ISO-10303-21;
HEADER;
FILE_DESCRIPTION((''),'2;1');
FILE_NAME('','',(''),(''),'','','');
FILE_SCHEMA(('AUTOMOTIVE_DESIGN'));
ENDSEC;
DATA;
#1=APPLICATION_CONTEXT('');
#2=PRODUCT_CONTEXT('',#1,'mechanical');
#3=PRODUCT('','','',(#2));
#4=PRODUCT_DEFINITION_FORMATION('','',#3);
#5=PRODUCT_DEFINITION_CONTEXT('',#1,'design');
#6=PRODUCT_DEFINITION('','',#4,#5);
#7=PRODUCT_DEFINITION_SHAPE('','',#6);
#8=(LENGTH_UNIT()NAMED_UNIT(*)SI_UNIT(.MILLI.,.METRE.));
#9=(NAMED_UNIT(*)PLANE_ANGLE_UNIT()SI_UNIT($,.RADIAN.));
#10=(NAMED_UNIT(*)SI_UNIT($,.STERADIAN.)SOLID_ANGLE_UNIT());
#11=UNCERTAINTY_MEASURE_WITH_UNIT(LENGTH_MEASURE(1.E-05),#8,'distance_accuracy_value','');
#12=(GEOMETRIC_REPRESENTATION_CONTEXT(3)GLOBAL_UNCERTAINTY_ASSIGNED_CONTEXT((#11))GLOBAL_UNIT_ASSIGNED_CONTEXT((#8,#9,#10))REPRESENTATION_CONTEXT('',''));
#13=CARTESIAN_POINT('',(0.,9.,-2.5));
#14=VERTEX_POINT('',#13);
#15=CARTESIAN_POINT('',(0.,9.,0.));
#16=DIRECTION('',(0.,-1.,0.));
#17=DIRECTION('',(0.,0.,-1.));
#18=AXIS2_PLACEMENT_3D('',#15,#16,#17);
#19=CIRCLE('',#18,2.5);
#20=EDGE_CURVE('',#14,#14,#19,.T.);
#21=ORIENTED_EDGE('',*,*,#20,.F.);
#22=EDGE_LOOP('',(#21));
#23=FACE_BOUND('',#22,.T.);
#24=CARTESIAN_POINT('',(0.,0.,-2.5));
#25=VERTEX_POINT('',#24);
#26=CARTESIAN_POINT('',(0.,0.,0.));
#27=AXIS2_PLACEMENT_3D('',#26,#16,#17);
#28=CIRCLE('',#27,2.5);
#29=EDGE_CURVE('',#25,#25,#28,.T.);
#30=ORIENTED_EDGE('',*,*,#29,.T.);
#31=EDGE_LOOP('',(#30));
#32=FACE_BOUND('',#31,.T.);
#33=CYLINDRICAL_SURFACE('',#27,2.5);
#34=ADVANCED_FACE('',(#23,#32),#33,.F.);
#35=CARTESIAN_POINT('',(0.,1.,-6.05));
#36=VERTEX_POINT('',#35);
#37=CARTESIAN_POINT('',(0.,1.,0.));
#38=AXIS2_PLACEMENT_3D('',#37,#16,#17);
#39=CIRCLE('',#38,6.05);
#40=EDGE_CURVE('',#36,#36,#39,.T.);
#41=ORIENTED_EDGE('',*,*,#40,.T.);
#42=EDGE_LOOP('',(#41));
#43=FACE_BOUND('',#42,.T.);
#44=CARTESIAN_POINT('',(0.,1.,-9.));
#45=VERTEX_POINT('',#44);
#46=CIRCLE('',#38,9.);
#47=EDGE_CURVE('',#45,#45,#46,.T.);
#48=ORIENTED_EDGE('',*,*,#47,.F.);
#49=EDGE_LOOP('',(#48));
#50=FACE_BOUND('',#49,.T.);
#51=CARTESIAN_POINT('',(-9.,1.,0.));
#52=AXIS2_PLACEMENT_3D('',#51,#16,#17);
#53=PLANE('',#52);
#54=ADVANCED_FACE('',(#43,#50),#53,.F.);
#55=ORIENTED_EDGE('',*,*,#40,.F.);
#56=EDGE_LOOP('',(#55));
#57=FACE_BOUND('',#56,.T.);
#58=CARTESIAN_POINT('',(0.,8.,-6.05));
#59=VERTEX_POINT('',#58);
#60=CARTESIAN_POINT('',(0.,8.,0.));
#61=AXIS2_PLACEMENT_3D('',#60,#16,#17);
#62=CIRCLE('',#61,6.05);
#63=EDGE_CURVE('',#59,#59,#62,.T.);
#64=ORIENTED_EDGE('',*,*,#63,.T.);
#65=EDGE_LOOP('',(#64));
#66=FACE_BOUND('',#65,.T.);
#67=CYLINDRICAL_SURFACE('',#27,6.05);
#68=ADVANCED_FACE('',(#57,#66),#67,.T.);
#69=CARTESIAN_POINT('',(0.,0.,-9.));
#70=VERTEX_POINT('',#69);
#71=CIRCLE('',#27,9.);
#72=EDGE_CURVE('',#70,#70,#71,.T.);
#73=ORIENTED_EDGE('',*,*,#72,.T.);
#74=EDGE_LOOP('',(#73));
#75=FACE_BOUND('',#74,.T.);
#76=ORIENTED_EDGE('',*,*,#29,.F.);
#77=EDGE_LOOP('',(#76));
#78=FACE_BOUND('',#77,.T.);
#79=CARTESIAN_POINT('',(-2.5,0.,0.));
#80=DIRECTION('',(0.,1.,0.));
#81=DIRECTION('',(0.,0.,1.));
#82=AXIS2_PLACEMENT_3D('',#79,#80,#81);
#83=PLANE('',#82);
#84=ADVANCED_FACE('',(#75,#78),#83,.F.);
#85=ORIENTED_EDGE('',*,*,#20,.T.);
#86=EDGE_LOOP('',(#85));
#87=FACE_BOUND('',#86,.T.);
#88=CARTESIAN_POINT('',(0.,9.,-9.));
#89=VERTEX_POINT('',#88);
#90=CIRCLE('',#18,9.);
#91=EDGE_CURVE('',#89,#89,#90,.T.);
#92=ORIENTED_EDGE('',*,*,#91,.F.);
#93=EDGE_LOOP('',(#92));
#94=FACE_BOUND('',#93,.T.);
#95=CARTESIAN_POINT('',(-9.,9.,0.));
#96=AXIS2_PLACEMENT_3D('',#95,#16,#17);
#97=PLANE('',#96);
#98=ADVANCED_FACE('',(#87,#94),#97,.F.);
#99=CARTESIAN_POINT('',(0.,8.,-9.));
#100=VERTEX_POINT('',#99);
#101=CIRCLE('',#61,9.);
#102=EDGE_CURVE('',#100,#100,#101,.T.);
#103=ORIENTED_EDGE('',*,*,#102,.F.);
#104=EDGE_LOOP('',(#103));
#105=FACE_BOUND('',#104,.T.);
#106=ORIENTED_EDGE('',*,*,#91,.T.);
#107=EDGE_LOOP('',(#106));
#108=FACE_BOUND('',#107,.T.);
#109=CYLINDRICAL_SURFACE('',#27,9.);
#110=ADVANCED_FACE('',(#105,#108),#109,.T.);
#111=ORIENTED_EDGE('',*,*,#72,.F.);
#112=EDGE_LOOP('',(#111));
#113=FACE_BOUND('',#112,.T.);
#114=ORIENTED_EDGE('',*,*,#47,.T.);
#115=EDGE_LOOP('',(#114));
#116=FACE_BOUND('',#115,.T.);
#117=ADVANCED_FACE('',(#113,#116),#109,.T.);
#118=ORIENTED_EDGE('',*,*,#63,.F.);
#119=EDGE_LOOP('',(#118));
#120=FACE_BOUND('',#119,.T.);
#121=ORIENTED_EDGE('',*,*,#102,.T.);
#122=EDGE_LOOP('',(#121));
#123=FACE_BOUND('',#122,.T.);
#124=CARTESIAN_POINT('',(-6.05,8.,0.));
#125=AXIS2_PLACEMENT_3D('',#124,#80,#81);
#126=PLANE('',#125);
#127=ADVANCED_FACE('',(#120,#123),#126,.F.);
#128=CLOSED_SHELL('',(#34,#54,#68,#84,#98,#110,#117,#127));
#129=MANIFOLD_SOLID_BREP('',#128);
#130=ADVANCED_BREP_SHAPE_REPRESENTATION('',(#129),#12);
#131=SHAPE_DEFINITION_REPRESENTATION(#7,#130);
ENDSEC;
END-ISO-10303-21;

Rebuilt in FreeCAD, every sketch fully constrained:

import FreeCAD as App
import Part
import Sketcher
Q = App.Units.Quantity

doc = App.newDocument("Part")
body = doc.addObject("PartDesign::Body", "Body")

sketch1 = body.newObject("Sketcher::SketchObject", "Sketch")
sketch1.AttachmentSupport = (doc.getObject("XY_Plane"), [""])
sketch1.MapMode = "FlatFace"
sketch1.addGeometry(Part.LineSegment(App.Vector(-9, 0, 0), App.Vector(-2.5, 0, 0)), False)
sketch1.addGeometry(Part.LineSegment(App.Vector(-2.5, 0, 0), App.Vector(-2.5, 9, 0)), False)
sketch1.addGeometry(Part.LineSegment(App.Vector(-2.5, 9, 0), App.Vector(-9, 9, 0)), False)
sketch1.addGeometry(Part.LineSegment(App.Vector(-9, 9, 0), App.Vector(-9, 8, 0)), False)
sketch1.addGeometry(Part.LineSegment(App.Vector(-9, 8, 0), App.Vector(-6.05, 8, 0)), False)
sketch1.addGeometry(Part.LineSegment(App.Vector(-6.05, 8, 0), App.Vector(-6.05, 1, 0)), False)
sketch1.addGeometry(Part.LineSegment(App.Vector(-6.05, 1, 0), App.Vector(-9, 1, 0)), False)
sketch1.addGeometry(Part.LineSegment(App.Vector(-9, 1, 0), App.Vector(-9, 0, 0)), False)
sketch1.addConstraint(Sketcher.Constraint("Coincident", 0, 2, 1, 1))
sketch1.addConstraint(Sketcher.Constraint("Coincident", 1, 2, 2, 1))
sketch1.addConstraint(Sketcher.Constraint("Coincident", 2, 2, 3, 1))
sketch1.addConstraint(Sketcher.Constraint("Coincident", 3, 2, 4, 1))
sketch1.addConstraint(Sketcher.Constraint("Coincident", 4, 2, 5, 1))
sketch1.addConstraint(Sketcher.Constraint("Coincident", 5, 2, 6, 1))
sketch1.addConstraint(Sketcher.Constraint("Coincident", 6, 2, 7, 1))
sketch1.addConstraint(Sketcher.Constraint("Coincident", 7, 2, 0, 1))
sketch1.addConstraint(Sketcher.Constraint("Horizontal", 0))
sketch1.addConstraint(Sketcher.Constraint("Vertical", 1))
sketch1.addConstraint(Sketcher.Constraint("Horizontal", 2))
sketch1.addConstraint(Sketcher.Constraint("Vertical", 3))
sketch1.addConstraint(Sketcher.Constraint("Horizontal", 4))
sketch1.addConstraint(Sketcher.Constraint("Vertical", 5))
sketch1.addConstraint(Sketcher.Constraint("Horizontal", 6))
sketch1.addConstraint(Sketcher.Constraint("Vertical", 7))
sketch1.addConstraint(Sketcher.Constraint("PointOnObject", 0, 2, -1))
sketch1.addConstraint(Sketcher.Constraint("Vertical", 3, 2, 6, 2))
sketch1.addConstraint(Sketcher.Constraint("Equal", 3, 7))
sketch1.addConstraint(Sketcher.Constraint("DistanceY", 1, 1, 1, 2, Q("9 mm")))
sketch1.addConstraint(Sketcher.Constraint("DistanceY", 3, 2, 3, 1, Q("1 mm")))
sketch1.addConstraint(Sketcher.Constraint("DistanceX", 0, 1, 0, 2, Q("6.5 mm")))
sketch1.addConstraint(Sketcher.Constraint("DistanceX", 2, 2, -1, 1, Q("9 mm")))
sketch1.addConstraint(Sketcher.Constraint("DistanceX", 4, 1, 4, 2, Q("2.95 mm")))
revolution = body.newObject("PartDesign::Revolution", "Revolution")
revolution.Profile = sketch1
revolution.ReferenceAxis = (sketch1, ["V_Axis"])
revolution.Angle = 360

doc.recompute()
